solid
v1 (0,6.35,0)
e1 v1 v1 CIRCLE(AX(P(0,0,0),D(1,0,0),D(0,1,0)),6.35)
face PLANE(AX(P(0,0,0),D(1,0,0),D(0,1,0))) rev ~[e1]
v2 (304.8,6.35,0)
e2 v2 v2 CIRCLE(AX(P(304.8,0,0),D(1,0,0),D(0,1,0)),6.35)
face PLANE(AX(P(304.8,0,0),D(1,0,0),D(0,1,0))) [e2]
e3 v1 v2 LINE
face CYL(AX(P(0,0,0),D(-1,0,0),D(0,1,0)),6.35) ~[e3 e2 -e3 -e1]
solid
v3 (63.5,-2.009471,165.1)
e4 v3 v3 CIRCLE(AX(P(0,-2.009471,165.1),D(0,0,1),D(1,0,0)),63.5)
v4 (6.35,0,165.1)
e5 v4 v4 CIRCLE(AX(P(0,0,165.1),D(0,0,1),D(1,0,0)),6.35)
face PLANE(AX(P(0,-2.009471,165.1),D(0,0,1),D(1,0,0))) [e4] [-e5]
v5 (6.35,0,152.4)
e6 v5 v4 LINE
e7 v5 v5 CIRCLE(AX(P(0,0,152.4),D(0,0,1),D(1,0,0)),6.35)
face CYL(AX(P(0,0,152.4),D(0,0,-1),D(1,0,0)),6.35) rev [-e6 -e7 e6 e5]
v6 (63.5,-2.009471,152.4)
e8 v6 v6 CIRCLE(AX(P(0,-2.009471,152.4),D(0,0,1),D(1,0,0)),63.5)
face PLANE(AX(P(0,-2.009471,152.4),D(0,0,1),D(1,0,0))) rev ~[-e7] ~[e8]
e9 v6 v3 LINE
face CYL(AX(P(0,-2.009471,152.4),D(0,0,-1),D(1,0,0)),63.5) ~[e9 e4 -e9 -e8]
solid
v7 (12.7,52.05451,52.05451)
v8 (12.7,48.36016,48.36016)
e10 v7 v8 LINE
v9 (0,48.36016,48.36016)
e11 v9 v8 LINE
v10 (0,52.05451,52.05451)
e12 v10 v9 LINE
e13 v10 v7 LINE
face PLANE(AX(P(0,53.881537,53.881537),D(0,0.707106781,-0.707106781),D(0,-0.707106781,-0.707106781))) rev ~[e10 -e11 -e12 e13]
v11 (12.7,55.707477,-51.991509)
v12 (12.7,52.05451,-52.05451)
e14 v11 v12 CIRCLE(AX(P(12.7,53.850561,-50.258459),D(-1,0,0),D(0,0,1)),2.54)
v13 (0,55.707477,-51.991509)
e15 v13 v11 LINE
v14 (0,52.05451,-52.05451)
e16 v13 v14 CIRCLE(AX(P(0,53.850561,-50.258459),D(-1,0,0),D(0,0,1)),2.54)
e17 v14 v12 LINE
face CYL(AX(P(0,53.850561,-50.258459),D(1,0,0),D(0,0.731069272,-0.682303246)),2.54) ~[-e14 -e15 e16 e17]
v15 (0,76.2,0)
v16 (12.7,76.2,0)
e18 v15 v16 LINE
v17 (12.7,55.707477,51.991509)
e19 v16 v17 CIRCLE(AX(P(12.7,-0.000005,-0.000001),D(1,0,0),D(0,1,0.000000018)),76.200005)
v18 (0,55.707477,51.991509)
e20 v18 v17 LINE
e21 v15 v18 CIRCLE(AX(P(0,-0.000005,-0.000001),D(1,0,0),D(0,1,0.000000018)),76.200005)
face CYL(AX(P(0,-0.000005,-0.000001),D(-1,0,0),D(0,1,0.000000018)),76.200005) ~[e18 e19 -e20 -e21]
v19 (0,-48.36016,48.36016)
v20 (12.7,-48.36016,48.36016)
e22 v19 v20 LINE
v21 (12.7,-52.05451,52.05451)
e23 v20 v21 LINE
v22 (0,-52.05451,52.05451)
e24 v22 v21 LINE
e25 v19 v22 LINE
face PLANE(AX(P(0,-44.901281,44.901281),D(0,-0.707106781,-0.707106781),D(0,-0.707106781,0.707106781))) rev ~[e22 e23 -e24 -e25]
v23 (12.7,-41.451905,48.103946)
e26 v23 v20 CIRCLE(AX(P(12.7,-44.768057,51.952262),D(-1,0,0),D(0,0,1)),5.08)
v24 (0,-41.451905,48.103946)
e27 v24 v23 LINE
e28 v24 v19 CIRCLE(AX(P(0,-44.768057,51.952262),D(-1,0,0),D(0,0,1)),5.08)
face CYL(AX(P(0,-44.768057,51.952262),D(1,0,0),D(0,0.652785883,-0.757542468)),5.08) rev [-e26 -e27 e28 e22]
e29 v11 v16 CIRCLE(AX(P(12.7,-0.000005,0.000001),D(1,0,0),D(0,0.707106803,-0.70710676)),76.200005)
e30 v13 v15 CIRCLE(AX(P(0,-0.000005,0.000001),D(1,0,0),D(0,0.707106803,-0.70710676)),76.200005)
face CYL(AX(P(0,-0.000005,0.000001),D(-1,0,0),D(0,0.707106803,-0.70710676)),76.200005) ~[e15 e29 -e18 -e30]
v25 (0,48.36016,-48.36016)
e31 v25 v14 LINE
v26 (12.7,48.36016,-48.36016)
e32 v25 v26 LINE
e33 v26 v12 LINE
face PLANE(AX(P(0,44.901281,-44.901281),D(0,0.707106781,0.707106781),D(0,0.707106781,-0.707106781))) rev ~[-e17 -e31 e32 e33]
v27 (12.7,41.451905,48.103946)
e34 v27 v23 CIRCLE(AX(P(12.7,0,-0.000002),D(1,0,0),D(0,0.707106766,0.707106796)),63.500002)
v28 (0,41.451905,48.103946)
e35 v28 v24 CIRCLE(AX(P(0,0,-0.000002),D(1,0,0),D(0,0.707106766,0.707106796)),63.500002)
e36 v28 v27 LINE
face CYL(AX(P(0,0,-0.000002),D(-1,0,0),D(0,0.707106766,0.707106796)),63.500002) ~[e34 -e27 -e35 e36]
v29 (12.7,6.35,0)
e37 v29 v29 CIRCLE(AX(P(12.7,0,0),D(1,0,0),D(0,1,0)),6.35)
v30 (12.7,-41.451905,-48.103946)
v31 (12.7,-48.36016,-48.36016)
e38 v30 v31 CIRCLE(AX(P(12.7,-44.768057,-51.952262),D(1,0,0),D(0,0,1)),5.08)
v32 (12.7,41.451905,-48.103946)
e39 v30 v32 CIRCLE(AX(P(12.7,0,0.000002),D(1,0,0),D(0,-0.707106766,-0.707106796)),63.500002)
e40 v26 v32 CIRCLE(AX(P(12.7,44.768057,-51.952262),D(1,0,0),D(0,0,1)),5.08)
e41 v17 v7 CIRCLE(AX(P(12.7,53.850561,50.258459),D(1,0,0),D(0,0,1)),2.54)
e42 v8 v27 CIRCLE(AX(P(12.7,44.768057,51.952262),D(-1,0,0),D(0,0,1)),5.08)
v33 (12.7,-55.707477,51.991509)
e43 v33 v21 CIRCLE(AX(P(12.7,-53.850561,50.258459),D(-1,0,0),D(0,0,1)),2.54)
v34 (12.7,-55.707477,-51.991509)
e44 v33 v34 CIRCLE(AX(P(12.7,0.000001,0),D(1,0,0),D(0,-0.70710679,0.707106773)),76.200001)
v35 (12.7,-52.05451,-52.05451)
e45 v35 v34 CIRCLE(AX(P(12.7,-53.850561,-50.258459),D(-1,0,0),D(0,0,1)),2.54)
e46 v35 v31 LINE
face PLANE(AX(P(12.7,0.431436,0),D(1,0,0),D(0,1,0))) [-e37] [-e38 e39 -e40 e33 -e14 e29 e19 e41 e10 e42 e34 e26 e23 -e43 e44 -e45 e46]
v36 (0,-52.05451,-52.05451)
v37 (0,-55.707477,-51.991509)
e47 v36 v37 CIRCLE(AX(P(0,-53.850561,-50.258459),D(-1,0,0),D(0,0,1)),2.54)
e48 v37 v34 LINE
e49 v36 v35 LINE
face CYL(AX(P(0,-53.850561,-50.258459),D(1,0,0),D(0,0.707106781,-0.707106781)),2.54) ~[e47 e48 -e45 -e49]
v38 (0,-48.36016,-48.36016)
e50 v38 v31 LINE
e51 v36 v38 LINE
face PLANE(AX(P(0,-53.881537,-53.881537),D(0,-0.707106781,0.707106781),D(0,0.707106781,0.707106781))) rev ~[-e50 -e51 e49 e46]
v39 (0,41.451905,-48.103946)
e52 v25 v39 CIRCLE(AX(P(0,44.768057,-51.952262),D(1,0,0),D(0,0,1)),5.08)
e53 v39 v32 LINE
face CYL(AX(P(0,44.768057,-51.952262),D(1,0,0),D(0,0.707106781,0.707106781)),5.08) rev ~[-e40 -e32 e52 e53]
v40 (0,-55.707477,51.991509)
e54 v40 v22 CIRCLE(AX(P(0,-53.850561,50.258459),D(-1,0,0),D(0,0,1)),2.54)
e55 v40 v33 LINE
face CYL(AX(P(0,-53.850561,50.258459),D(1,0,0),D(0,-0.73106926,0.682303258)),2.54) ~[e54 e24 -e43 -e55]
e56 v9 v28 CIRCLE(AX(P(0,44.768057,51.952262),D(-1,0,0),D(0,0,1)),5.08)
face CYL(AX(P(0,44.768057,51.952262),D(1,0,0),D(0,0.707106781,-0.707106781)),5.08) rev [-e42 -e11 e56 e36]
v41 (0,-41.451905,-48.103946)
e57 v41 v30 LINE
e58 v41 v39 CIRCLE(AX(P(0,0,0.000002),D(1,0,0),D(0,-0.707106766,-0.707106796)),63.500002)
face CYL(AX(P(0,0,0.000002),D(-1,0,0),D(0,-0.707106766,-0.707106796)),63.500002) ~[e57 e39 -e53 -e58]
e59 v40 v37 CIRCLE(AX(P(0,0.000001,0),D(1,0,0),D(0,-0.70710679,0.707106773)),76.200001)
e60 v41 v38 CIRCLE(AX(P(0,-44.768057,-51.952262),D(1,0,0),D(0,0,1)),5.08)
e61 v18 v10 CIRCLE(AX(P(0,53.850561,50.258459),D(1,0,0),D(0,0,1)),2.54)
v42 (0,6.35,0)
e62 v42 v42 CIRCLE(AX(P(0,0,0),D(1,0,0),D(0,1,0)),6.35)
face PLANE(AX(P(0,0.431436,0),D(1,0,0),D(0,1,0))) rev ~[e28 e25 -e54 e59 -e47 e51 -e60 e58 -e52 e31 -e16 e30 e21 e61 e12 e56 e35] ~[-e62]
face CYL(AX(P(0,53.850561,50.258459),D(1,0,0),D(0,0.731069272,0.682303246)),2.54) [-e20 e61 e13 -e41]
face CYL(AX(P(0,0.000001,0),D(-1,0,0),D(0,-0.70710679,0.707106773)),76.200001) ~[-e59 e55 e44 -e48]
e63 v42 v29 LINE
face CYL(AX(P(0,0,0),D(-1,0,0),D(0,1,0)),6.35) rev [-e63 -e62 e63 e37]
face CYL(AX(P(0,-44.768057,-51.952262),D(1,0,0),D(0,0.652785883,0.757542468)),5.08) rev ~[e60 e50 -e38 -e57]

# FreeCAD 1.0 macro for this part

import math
import FreeCAD as App
import Part
import Sketcher

V = App.Vector
Q = App.Units.Quantity


def edges_at(feature, points):
    """Names of the edges that pass closest to the given points."""
    edges = feature.Shape.Edges
    near = lambda p: min(range(len(edges)), key=lambda i: edges[i].distToShape(Part.Vertex(*p))[0])
    return sorted({f"Edge{near(p) + 1}" for p in points})

doc = App.newDocument("Part")
body = doc.addObject("PartDesign::Body", "Body")

sketch1 = body.newObject("Sketcher::SketchObject", "Sketch")
sketch1.AttachmentSupport = (doc.getObject("YZ_Plane"), [""])
sketch1.MapMode = "FlatFace"
sketch1.addGeometry([
    Part.ArcOfCircle(Part.Circle(V(0, 0, 0), V(0, 0, 1), 76), math.radians(-45), math.radians(0)),
    Part.ArcOfCircle(Part.Circle(V(0, 0, 0), V(0, 0, 1), 76), math.radians(0), math.radians(45)),
    Part.LineSegment(V(54, 54, 0), V(45, 45, 0)),
    Part.ArcOfCircle(Part.Circle(V(0, 0, 0), V(0, 0, 1), 64), math.radians(45), math.radians(135)),
    Part.LineSegment(V(-45, 45, 0), V(-54, 54, 0)),
    Part.ArcOfCircle(Part.Circle(V(0, 0, 0), V(0, 0, 1), 76), math.radians(135), math.radians(225)),
    Part.LineSegment(V(-54, -54, 0), V(-45, -45, 0)),
    Part.ArcOfCircle(Part.Circle(V(0, 0, 0), V(0, 0, 1), 64), math.radians(-135), math.radians(-45)),
    Part.LineSegment(V(45, -45, 0), V(54, -54, 0)),
    Part.Circle(V(0, 0, 0), V(0, 0, 1), 6),
], False)
sketch1.addConstraint([
    Sketcher.Constraint("Tangent", 0, 2, 1, 1),
    Sketcher.Constraint("Coincident", 1, 2, 2, 1),
    Sketcher.Constraint("Coincident", 2, 2, 3, 1),
    Sketcher.Constraint("Coincident", 3, 2, 4, 1),
    Sketcher.Constraint("Coincident", 4, 2, 5, 1),
    Sketcher.Constraint("Coincident", 5, 2, 6, 1),
    Sketcher.Constraint("Coincident", 6, 2, 7, 1),
    Sketcher.Constraint("Coincident", 7, 2, 8, 1),
    Sketcher.Constraint("Coincident", 8, 2, 0, 1),
    Sketcher.Constraint("Coincident", 0, 3, -1, 1),
    Sketcher.Constraint("Coincident", 3, 3, -1, 1),
    Sketcher.Constraint("Coincident", 5, 3, -1, 1),
    Sketcher.Constraint("Coincident", 7, 3, -1, 1),
    Sketcher.Constraint("Coincident", 9, 3, -1, 1),
    Sketcher.Constraint("Equal", 0, 1),
    Sketcher.Constraint("Equal", 3, 7),
    Sketcher.Constraint("Symmetric", 1, 2, 5, 2, -1, 1),
    Sketcher.Constraint("PointOnObject", 0, 2, -1),
    Sketcher.Constraint("Perpendicular", 2, 4),
    Sketcher.Constraint("Perpendicular", 4, 6),
    Sketcher.Constraint("Perpendicular", 6, 8),
    Sketcher.Constraint("Horizontal", 2, 2, 3, 2),
    Sketcher.Constraint("Horizontal", 1, 2, 4, 2),
    Sketcher.Constraint("Horizontal", 6, 2, 7, 2),
    Sketcher.Constraint("Radius", 0, Q("3.0000002 in")),
    Sketcher.Constraint("Diameter", 9, Q("0.5 in")),
    Sketcher.Constraint("Radius", 3, Q("2.5000001 in")),
    Sketcher.Constraint("DistanceX", -1, 1, 2, 2, 44.901281),
])
pad1 = body.newObject("PartDesign::Pad", "Pad")
pad1.Profile = sketch1
pad1.Length = Q("0.5 in")
doc.recompute()

fillet = body.newObject("PartDesign::Fillet", "Fillet")
fillet.Base = (pad1, edges_at(pad1, [
    (6.35, -53.882, 53.882),
    (6.35, 53.882, 53.882),
    (6.35, -53.882, -53.882),
    (6.35, 53.882, -53.882),
]))
fillet.Radius = Q("0.1 in")
doc.recompute()

fillet2 = body.newObject("PartDesign::Fillet", "Fillet001")
fillet2.Base = (fillet, edges_at(fillet, [
    (6.35, -44.901, -44.901),
    (6.35, 44.901, -44.901),
    (6.35, 44.901, 44.901),
    (6.35, -44.901, 44.901),
]))
fillet2.Radius = Q("0.2 in")
body2 = doc.addObject("PartDesign::Body", "Body001")

sketch2 = body2.newObject("Sketcher::SketchObject", "Sketch001")
sketch2.AttachmentSupport = (doc.getObject("YZ_Plane001"), [""])
sketch2.MapMode = "FlatFace"
sketch2.addGeometry(Part.Circle(V(0, 0, 0), V(0, 0, 1), 6), False)
sketch2.addConstraint([
    Sketcher.Constraint("Coincident", 0, 3, -1, 1),
    Sketcher.Constraint("Diameter", 0, Q("0.5 in")),
])
pad2 = body2.newObject("PartDesign::Pad", "Pad001")
pad2.Profile = sketch2
pad2.Length = Q("12 in")
body3 = doc.addObject("PartDesign::Body", "Body002")

sketch3 = body3.newObject("Sketcher::SketchObject", "Sketch002")
sketch3.AttachmentSupport = (doc.getObject("XY_Plane002"), [""])
sketch3.MapMode = "FlatFace"
sketch3.AttachmentOffset = App.Placement(V(0, 0, 6 * 25.4), App.Rotation())
sketch3.addGeometry([
    Part.Circle(V(0, -2, 0), V(0, 0, 1), 64),
    Part.Circle(V(0, 0, 0), V(0, 0, 1), 6),
], False)
sketch3.addConstraint([
    Sketcher.Constraint("Coincident", 1, 3, -1, 1),
    Sketcher.Constraint("PointOnObject", 0, 3, -2),
    Sketcher.Constraint("Diameter", 0, Q("5 in")),
    Sketcher.Constraint("Diameter", 1, Q("0.5 in")),
    Sketcher.Constraint("DistanceY", 0, 3, -1, 1, 2.009471),
])
pad3 = body3.newObject("PartDesign::Pad", "Pad002")
pad3.Profile = sketch3
pad3.Length = Q("0.5 in")

doc.recompute()
